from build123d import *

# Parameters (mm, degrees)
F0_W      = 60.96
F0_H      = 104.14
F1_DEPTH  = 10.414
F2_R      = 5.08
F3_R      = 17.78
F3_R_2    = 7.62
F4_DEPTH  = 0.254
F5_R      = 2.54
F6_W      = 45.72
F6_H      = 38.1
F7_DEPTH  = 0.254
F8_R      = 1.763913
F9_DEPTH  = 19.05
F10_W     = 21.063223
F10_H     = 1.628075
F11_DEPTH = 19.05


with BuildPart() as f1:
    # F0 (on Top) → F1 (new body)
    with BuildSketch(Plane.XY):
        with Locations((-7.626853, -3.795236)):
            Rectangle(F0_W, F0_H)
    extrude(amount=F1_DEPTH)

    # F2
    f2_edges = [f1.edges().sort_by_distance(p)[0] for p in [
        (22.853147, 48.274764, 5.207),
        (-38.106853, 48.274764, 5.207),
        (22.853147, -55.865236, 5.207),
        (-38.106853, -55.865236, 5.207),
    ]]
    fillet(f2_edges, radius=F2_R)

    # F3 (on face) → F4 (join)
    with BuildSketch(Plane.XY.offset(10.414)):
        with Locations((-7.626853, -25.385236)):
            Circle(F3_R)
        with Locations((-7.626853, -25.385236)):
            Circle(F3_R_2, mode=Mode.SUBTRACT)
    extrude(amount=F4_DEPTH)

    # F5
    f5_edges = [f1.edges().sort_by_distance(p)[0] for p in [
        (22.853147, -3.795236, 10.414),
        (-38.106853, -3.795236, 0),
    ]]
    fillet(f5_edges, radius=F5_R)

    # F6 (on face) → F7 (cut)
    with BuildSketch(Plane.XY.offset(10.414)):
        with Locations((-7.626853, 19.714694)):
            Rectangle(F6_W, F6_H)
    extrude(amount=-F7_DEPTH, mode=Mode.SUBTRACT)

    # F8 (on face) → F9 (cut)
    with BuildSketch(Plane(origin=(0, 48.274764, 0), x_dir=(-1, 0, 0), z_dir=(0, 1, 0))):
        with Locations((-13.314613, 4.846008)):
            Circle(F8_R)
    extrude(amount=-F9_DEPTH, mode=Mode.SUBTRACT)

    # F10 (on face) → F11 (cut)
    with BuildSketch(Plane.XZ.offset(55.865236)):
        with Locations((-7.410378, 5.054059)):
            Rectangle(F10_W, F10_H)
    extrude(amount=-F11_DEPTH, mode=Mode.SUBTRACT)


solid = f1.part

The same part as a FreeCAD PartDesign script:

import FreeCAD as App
import Part
import Sketcher

V = App.Vector
Q = App.Units.Quantity


def edges_at(feature, points):
    """Names of the edges that pass closest to the given points."""
    edges = feature.Shape.Edges
    near = lambda p: min(range(len(edges)), key=lambda i: edges[i].distToShape(Part.Vertex(*p))[0])
    return sorted({f"Edge{near(p) + 1}" for p in points})

doc = App.newDocument("Part")
body = doc.addObject("PartDesign::Body", "Body")

# Sketch on XY plane
sketch1 = body.newObject("Sketcher::SketchObject", "Sketch")
sketch1.AttachmentSupport = (doc.getObject("XY_Plane"), [""])
sketch1.MapMode = "FlatFace"
sketch1.addGeometry([
    Part.LineSegment(V(-38.106853, 48.274764, 0), V(-38.106853, -55.865236, 0)),
    Part.LineSegment(V(-38.106853, -55.865236, 0), V(22.853147, -55.865236, 0)),
    Part.LineSegment(V(22.853147, -55.865236, 0), V(22.853147, 48.274764, 0)),
    Part.LineSegment(V(22.853147, 48.274764, 0), V(-38.106853, 48.274764, 0)),
], False)
sketch1.addConstraint([
    Sketcher.Constraint("Coincident", 0, 2, 1, 1),
    Sketcher.Constraint("Coincident", 1, 2, 2, 1),
    Sketcher.Constraint("Coincident", 2, 2, 3, 1),
    Sketcher.Constraint("Coincident", 3, 2, 0, 1),
    Sketcher.Constraint("Vertical", 0),
    Sketcher.Constraint("Horizontal", 1),
    Sketcher.Constraint("Vertical", 2),
    Sketcher.Constraint("Horizontal", 3),
    Sketcher.Constraint("DistanceX", 1, 1, 1, 2, Q("2.4 in")),
    Sketcher.Constraint("DistanceY", 0, 2, 0, 1, Q("4.1 in")),
    Sketcher.Constraint("DistanceX", 0, 2, -1, 1, Q("38.106853 mm")),
    Sketcher.Constraint("DistanceY", 0, 2, -1, 1, Q("55.865236 mm")),
])
pad1 = body.newObject("PartDesign::Pad", "Pad")
pad1.Profile = sketch1
pad1.Length = Q("0.41 in")
doc.recompute()

fillet = body.newObject("PartDesign::Fillet", "Fillet")
fillet.Base = (pad1, edges_at(pad1, [
    (22.853, 48.275, 5.207),
    (-38.107, 48.275, 5.207),
    (22.853, -55.865, 5.207),
    (-38.107, -55.865, 5.207),
]))
fillet.Radius = Q("0.2 in")

# Sketch on XY plane
sketch2 = body.newObject("Sketcher::SketchObject", "Sketch001")
sketch2.AttachmentSupport = (doc.getObject("XY_Plane"), [""])
sketch2.MapMode = "FlatFace"
sketch2.AttachmentOffset = App.Placement(V(0, 0, 0.41 * 25.4), App.Rotation())
sketch2.addGeometry([
    Part.Circle(V(-7.626853, -25.385236, 0), V(0, 0, 1), 17.78),
    Part.Circle(V(-7.626853, -25.385236, 0), V(0, 0, 1), 7.62),
], False)
sketch2.addConstraint([
    Sketcher.Constraint("Coincident", 1, 3, 0, 3),
    Sketcher.Constraint("Diameter", 0, Q("1.4 in")),
    Sketcher.Constraint("Diameter", 1, Q("0.6 in")),
    Sketcher.Constraint("DistanceX", 0, 3, -1, 1, Q("7.626853 mm")),
    Sketcher.Constraint("DistanceY", 0, 3, -1, 1, Q("25.385236 mm")),
])
pad2 = body.newObject("PartDesign::Pad", "Pad001")
pad2.Profile = sketch2
pad2.Length = Q("0.01 in")
doc.recompute()

fillet2 = body.newObject("PartDesign::Fillet", "Fillet001")
fillet2.Base = (pad2, edges_at(pad2, [(22.853, -3.795, 10.414), (-38.107, -3.795, 0)]))
fillet2.Radius = Q("0.1 in")

# Sketch on XY plane
sketch3 = body.newObject("Sketcher::SketchObject", "Sketch002")
sketch3.AttachmentSupport = (doc.getObject("XY_Plane"), [""])
sketch3.MapMode = "FlatFace"
sketch3.AttachmentOffset = App.Placement(V(0, 0, 0.41 * 25.4), App.Rotation())
sketch3.addGeometry([
    Part.LineSegment(V(-30.486853, 38.764694, 0), V(-30.486853, 0.664694, 0)),
    Part.LineSegment(V(-30.486853, 0.664694, 0), V(15.233147, 0.664694, 0)),
    Part.LineSegment(V(15.233147, 0.664694, 0), V(15.233147, 38.764694, 0)),
    Part.LineSegment(V(15.233147, 38.764694, 0), V(-30.486853, 38.764694, 0)),
], False)
sketch3.addConstraint([
    Sketcher.Constraint("Coincident", 0, 2, 1, 1),
    Sketcher.Constraint("Coincident", 1, 2, 2, 1),
    Sketcher.Constraint("Coincident", 2, 2, 3, 1),
    Sketcher.Constraint("Coincident", 3, 2, 0, 1),
    Sketcher.Constraint("Vertical", 0),
    Sketcher.Constraint("Horizontal", 1),
    Sketcher.Constraint("Vertical", 2),
    Sketcher.Constraint("Horizontal", 3),
    Sketcher.Constraint("DistanceX", 1, 1, 1, 2, Q("1.8 in")),
    Sketcher.Constraint("DistanceY", 0, 2, 0, 1, Q("1.5 in")),
    Sketcher.Constraint("DistanceX", 0, 2, -1, 1, Q("30.486853 mm")),
    Sketcher.Constraint("DistanceY", -1, 1, 0, 2, Q("0.664694 mm")),
])
pocket1 = body.newObject("PartDesign::Pocket", "Pocket")
pocket1.Profile = sketch3
pocket1.Length = Q("0.01 in")

# Sketch on XZ plane
sketch4 = body.newObject("Sketcher::SketchObject", "Sketch003")
sketch4.AttachmentSupport = (doc.getObject("XZ_Plane"), [""])
sketch4.MapMode = "FlatFace"
sketch4.AttachmentOffset = App.Placement(V(0, 0, -48.274764), App.Rotation())
sketch4.addGeometry(Part.Circle(V(13.314613, 4.846008, 0), V(0, 0, 1), 1.763913), False)
sketch4.addConstraint([
    Sketcher.Constraint("Diameter", 0, Q("3.527826 mm")),
    Sketcher.Constraint("DistanceY", -1, 1, 0, 3, Q("4.846008 mm")),
    Sketcher.Constraint("DistanceX", -1, 1, 0, 3, Q("13.314613 mm")),
])
pocket2 = body.newObject("PartDesign::Pocket", "Pocket001")
pocket2.Profile = sketch4
pocket2.Length = Q("0.75 in")
pocket2.Reversed = True

# Sketch on XZ plane
sketch5 = body.newObject("Sketcher::SketchObject", "Sketch004")
sketch5.AttachmentSupport = (doc.getObject("XZ_Plane"), [""])
sketch5.MapMode = "FlatFace"
sketch5.AttachmentOffset = App.Placement(V(0, 0, 55.865236), App.Rotation())
sketch5.addGeometry([
    Part.LineSegment(V(-17.941989, 5.868097, 0), V(-17.941989, 4.240022, 0)),
    Part.LineSegment(V(-17.941989, 4.240022, 0), V(3.121234, 4.240022, 0)),
    Part.LineSegment(V(3.121234, 4.240022, 0), V(3.121234, 5.868097, 0)),
    Part.LineSegment(V(3.121234, 5.868097, 0), V(-17.941989, 5.868097, 0)),
], False)
sketch5.addConstraint([
    Sketcher.Constraint("Coincident", 0, 2, 1, 1),
    Sketcher.Constraint("Coincident", 1, 2, 2, 1),
    Sketcher.Constraint("Coincident", 2, 2, 3, 1),
    Sketcher.Constraint("Coincident", 3, 2, 0, 1),
    Sketcher.Constraint("Vertical", 0),
    Sketcher.Constraint("Horizontal", 1),
    Sketcher.Constraint("Vertical", 2),
    Sketcher.Constraint("Horizontal", 3),
    Sketcher.Constraint("DistanceX", 1, 1, 1, 2, Q("21.063223 mm")),
    Sketcher.Constraint("DistanceY", 0, 2, 0, 1, Q("1.628075 mm")),
    Sketcher.Constraint("DistanceX", 0, 2, -1, 1, Q("17.941989 mm")),
    Sketcher.Constraint("DistanceY", -1, 1, 0, 2, Q("4.240022 mm")),
])
pocket3 = body.newObject("PartDesign::Pocket", "Pocket002")
pocket3.Profile = sketch5
pocket3.Length = Q("0.75 in")

doc.recompute()
